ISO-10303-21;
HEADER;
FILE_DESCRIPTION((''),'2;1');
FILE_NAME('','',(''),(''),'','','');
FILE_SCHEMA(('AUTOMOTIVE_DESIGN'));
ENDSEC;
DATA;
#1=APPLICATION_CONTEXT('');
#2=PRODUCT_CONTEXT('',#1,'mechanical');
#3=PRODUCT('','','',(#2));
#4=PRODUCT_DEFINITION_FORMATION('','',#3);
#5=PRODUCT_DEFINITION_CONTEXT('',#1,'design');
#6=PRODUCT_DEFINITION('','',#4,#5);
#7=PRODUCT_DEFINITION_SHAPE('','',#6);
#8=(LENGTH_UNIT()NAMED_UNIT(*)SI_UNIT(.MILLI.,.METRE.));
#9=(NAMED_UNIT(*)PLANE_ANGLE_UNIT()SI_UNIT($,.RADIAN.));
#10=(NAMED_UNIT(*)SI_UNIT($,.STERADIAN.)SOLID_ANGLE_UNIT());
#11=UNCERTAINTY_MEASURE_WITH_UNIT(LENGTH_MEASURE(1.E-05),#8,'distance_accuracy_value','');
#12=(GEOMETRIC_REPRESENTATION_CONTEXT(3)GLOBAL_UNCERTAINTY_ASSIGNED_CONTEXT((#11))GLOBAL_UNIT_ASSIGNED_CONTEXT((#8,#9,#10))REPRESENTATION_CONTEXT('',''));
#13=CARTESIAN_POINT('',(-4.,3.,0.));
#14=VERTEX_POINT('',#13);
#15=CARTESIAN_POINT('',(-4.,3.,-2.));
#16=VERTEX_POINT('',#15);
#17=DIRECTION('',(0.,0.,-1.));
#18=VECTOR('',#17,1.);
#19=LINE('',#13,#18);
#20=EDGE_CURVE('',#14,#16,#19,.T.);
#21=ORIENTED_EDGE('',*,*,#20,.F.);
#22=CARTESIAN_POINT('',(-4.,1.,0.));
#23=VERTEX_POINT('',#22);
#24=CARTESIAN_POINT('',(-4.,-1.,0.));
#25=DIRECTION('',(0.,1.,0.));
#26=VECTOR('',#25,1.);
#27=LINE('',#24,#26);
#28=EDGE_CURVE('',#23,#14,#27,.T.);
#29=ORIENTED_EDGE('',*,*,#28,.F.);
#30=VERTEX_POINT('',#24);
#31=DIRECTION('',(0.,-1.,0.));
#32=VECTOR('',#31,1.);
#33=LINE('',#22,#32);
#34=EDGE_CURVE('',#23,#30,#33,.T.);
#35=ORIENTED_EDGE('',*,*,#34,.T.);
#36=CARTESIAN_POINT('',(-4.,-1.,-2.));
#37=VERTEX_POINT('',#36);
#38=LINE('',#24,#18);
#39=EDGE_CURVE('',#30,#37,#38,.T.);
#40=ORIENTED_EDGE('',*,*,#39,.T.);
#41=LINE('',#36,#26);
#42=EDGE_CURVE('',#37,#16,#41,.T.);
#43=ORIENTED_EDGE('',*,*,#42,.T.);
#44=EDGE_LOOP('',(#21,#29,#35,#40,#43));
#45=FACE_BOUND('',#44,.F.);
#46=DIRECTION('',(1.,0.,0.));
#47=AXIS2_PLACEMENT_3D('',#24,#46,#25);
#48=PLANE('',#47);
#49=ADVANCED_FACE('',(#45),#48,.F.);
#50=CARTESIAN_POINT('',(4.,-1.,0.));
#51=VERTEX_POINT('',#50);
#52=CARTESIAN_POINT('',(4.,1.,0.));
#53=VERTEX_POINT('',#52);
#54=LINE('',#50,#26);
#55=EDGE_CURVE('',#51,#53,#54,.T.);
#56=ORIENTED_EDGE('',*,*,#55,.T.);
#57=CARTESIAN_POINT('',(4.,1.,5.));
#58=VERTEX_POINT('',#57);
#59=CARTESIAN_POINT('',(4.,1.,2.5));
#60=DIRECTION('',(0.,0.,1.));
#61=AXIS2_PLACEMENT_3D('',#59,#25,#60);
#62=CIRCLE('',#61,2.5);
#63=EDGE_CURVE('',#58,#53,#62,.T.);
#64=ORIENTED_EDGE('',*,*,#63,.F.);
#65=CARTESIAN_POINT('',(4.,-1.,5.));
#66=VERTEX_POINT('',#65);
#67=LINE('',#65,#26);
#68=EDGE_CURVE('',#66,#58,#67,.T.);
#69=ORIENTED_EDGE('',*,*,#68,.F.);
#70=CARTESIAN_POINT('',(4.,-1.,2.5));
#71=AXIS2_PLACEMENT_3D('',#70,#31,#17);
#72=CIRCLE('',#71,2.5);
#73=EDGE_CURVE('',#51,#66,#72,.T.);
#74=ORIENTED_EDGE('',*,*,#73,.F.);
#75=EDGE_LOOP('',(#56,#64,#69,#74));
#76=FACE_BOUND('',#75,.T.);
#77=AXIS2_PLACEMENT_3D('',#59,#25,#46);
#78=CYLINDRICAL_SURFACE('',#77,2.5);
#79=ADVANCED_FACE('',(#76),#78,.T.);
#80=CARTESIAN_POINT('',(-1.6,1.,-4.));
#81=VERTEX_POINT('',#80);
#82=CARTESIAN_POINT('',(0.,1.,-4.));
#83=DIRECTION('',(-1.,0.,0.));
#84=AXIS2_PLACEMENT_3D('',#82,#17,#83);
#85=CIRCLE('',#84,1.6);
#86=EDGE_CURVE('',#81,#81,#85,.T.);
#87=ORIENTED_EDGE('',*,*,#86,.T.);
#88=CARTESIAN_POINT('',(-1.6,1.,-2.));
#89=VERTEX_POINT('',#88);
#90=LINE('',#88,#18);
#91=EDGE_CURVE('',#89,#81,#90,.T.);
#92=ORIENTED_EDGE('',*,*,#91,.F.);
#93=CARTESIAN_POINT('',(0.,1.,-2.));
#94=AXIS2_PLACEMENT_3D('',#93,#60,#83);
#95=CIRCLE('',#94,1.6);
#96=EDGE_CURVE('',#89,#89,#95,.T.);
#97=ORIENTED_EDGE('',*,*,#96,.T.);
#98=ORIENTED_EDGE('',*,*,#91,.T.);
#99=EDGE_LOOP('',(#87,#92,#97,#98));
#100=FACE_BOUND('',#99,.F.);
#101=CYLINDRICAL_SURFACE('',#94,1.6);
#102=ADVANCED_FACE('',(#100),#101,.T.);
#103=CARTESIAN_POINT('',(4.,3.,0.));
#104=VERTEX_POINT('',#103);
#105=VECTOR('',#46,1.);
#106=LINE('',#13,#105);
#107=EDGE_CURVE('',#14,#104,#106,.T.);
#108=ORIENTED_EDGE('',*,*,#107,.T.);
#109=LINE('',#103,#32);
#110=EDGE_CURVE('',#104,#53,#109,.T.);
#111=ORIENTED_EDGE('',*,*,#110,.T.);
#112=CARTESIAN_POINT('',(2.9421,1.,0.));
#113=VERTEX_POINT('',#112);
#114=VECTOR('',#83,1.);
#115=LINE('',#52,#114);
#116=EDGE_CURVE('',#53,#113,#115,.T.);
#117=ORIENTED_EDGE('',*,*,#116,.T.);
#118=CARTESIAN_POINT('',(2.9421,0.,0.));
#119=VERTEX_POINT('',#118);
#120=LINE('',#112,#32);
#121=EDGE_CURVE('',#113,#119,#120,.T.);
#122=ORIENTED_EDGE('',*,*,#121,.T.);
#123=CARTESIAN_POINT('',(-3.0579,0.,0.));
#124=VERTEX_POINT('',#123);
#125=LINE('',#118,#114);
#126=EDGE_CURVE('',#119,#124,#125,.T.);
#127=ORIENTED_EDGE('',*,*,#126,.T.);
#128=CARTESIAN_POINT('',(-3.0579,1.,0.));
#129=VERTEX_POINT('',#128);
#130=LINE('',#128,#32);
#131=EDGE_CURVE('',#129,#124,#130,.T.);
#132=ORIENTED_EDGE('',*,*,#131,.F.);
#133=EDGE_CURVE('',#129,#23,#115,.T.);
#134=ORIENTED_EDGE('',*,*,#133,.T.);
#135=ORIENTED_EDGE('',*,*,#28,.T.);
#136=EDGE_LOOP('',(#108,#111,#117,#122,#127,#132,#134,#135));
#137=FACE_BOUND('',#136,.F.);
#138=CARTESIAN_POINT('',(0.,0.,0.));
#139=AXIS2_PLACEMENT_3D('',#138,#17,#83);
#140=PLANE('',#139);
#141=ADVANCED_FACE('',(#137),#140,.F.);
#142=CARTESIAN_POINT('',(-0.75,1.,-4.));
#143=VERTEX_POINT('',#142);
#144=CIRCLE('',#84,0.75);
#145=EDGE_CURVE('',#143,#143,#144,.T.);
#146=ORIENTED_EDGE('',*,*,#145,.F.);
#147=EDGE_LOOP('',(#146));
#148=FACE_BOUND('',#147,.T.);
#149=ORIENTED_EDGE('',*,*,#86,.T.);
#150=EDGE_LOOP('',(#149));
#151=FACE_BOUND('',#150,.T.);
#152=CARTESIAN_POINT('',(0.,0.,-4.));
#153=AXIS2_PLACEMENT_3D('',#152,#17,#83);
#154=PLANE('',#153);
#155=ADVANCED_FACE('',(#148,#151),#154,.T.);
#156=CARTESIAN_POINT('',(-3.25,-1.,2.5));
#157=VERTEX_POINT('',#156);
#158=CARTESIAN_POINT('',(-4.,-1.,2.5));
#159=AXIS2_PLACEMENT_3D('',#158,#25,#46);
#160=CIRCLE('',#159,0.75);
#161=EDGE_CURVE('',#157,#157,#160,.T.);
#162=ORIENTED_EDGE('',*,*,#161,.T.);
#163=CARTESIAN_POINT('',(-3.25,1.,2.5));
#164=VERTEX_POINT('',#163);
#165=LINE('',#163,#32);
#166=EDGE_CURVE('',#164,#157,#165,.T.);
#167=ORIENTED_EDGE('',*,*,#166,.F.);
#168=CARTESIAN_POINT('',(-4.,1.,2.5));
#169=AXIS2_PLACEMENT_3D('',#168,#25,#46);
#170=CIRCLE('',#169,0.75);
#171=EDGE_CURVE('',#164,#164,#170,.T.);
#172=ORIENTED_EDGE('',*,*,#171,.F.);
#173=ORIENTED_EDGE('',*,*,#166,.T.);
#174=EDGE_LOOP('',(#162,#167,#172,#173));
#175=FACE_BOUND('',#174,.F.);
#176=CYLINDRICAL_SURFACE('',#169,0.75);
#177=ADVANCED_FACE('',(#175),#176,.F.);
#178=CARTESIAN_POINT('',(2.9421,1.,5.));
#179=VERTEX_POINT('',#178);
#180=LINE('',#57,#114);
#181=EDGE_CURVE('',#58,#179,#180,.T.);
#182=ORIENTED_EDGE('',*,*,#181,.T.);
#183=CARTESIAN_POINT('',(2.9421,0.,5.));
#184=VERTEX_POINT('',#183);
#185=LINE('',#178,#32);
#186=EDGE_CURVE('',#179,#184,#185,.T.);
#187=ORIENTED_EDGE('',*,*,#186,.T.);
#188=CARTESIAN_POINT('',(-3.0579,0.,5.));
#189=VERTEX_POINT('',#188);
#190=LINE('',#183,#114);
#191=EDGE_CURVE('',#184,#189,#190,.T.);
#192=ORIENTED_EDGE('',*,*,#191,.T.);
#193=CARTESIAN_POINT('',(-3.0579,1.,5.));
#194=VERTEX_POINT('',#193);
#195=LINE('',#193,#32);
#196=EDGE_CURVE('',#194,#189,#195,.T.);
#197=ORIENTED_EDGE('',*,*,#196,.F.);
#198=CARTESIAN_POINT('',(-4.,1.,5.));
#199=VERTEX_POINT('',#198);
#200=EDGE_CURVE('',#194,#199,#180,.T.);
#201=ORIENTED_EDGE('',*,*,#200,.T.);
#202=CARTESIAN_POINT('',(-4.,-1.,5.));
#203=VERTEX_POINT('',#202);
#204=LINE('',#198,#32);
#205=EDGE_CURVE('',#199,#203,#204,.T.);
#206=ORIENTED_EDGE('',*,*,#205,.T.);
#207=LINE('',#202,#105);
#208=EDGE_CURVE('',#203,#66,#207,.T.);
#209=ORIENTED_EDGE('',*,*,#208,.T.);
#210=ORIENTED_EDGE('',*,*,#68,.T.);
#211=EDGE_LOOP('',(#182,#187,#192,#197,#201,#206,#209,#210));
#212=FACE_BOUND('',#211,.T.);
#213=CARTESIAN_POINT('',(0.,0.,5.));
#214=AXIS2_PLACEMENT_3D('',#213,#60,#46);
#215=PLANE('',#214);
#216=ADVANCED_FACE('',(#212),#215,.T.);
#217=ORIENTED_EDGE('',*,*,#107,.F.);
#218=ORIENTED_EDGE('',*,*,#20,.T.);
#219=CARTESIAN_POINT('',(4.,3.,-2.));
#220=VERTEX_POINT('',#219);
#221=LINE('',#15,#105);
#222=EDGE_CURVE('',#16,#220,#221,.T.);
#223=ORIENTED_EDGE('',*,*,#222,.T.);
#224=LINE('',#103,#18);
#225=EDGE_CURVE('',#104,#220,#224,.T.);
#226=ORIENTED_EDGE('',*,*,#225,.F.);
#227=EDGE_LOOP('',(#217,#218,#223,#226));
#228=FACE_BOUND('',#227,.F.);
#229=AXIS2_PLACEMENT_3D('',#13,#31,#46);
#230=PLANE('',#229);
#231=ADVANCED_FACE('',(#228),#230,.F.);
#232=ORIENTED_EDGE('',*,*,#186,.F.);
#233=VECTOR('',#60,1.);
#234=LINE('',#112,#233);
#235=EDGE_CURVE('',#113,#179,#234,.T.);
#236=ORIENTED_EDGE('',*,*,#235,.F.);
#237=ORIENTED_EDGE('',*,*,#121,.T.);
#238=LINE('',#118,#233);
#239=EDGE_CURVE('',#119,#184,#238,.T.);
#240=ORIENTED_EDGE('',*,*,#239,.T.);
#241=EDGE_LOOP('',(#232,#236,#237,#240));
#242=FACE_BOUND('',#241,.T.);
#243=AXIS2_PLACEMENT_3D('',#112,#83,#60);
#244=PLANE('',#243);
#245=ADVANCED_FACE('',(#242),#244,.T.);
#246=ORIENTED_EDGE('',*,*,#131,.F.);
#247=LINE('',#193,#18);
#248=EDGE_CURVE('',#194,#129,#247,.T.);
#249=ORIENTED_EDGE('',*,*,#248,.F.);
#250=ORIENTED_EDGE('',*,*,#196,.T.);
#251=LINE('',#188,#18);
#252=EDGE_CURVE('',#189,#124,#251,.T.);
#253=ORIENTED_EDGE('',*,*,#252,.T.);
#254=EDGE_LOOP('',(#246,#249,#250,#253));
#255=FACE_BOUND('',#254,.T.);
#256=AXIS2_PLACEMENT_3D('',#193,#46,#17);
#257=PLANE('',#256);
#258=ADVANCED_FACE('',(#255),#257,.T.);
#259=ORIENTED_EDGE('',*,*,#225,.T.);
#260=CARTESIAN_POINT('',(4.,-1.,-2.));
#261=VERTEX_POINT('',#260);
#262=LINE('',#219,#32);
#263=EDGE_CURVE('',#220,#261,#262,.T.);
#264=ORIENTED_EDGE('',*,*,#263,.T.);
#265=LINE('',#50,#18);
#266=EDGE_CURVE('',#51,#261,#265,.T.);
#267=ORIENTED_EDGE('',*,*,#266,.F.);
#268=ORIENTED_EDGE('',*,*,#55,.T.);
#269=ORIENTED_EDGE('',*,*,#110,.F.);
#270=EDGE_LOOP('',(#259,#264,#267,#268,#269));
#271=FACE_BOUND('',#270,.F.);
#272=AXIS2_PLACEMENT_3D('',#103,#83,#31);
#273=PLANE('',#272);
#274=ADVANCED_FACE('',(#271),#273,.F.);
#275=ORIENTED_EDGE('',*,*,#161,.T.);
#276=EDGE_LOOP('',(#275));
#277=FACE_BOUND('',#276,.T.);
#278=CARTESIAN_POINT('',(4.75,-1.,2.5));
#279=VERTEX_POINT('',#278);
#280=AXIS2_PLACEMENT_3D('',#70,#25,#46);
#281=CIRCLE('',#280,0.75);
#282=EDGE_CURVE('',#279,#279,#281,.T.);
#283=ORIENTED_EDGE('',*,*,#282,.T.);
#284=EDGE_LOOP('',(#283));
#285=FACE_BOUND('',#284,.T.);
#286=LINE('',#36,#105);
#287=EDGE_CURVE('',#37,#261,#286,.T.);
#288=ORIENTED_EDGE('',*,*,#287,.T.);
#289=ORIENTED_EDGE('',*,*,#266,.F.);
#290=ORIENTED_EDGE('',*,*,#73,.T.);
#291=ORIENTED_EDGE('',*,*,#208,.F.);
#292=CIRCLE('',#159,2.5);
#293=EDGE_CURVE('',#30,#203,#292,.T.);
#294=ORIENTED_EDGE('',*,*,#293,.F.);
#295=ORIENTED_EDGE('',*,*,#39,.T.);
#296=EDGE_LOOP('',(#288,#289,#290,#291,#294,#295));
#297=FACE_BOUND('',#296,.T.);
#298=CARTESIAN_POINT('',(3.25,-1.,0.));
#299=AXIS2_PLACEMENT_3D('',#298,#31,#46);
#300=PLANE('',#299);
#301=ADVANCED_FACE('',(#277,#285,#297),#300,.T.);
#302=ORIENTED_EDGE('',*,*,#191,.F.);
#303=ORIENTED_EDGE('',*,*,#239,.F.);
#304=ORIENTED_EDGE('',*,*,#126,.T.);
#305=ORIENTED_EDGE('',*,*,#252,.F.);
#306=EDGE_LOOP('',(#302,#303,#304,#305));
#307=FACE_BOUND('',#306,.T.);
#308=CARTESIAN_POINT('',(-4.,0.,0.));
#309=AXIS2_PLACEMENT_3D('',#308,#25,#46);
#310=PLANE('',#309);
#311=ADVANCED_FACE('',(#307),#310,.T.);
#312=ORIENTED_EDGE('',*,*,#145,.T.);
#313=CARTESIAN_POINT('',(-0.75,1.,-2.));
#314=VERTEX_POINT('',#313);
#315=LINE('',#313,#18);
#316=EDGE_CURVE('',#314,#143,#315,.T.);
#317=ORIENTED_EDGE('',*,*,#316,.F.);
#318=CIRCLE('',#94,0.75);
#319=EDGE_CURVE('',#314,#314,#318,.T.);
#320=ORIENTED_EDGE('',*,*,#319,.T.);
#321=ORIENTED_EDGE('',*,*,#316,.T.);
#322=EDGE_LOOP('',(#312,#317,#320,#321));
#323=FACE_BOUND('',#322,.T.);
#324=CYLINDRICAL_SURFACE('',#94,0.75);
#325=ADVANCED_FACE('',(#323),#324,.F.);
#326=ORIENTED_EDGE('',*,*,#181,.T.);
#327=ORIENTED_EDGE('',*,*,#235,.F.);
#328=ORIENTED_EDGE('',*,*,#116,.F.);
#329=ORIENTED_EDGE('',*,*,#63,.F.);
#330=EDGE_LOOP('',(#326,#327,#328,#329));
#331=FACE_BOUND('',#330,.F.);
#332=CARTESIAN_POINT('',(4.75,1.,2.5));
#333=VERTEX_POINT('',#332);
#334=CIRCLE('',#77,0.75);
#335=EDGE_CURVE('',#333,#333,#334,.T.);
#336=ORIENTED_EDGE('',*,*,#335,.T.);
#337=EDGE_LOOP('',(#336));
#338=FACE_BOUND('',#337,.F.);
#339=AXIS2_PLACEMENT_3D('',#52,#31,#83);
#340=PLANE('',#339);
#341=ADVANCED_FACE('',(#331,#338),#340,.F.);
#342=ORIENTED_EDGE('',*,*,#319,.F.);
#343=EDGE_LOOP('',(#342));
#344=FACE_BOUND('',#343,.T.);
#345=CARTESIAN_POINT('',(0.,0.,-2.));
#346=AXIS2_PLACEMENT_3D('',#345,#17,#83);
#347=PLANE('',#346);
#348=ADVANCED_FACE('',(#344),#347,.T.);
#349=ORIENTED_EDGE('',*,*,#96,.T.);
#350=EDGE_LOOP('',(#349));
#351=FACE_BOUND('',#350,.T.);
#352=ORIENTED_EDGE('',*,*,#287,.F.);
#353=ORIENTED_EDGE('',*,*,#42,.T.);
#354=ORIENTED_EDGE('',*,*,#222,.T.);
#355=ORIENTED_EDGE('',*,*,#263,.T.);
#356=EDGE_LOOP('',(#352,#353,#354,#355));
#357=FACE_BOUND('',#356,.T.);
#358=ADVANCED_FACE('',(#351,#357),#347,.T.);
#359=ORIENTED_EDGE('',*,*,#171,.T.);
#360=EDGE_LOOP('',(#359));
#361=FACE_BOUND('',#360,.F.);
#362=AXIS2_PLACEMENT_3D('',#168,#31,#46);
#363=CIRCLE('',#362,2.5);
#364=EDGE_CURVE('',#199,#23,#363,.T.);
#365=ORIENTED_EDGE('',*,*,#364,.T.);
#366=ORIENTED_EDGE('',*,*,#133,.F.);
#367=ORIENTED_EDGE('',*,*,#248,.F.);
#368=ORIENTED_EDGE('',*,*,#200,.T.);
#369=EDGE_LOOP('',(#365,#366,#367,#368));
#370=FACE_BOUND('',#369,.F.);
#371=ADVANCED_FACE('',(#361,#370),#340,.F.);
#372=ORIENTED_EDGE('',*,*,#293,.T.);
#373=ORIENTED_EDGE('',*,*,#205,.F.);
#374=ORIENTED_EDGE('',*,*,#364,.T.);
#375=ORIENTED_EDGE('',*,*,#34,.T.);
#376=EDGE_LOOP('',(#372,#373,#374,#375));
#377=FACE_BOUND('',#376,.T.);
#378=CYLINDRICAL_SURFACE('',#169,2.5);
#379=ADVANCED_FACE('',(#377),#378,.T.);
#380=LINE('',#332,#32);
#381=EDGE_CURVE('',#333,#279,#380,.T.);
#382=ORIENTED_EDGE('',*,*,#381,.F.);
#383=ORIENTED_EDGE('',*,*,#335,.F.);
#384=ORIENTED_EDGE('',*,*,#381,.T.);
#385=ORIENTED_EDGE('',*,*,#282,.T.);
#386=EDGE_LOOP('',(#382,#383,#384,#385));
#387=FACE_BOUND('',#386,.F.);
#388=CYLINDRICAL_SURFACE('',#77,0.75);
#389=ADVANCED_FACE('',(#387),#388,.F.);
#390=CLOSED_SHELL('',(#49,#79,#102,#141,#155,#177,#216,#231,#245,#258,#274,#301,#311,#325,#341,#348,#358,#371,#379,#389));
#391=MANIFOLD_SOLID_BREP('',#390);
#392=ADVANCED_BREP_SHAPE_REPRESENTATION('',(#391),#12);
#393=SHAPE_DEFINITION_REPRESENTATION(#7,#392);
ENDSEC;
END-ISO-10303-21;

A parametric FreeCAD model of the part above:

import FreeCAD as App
import Part
import Sketcher
from FreeCAD import Vector
Q = App.Units.Quantity


def add_polygon(sketch, points):
    """Adds a closed chain of lines whose ends are joined by coincident constraints."""
    first, n = sketch.GeometryCount, len(points)
    for a, b in zip(points, points[1:] + points[:1]):
        sketch.addGeometry(Part.LineSegment(App.Vector(*a, 0), App.Vector(*b, 0)), False)
    for i in range(n):
        sketch.addConstraint(Sketcher.Constraint("Coincident", first + i, 2, first + (i + 1) % n, 1))

doc = App.newDocument("Part")
body = doc.addObject("PartDesign::Body", "Body")

sketch1 = body.newObject("Sketcher::SketchObject", "Sketch")
sketch1.AttachmentSupport = (doc.getObject("XY_Plane"), [""])
sketch1.MapMode = "FlatFace"
add_polygon(sketch1, [(-4, 1), (-4, -1), (4, -1), (4, 1)])
sketch1.addConstraint([
    Sketcher.Constraint("Vertical", 0),
    Sketcher.Constraint("Horizontal", 1),
    Sketcher.Constraint("Vertical", 2),
    Sketcher.Constraint("Horizontal", 3),
    Sketcher.Constraint("Symmetric", 0, 2, 2, 2, -1, 1),
    Sketcher.Constraint("DistanceX", 1, 1, 1, 2, Q("8 mm")),
    Sketcher.Constraint("DistanceY", 0, 2, 0, 1, Q("2 mm")),
])
pad1 = body.newObject("PartDesign::Pad", "Pad")
pad1.Profile = sketch1
pad1.Length = 5

sketch2 = body.newObject("Sketcher::SketchObject", "Sketch001")
sketch2.AttachmentSupport = (doc.getObject("XZ_Plane"), [""])
sketch2.MapMode = "FlatFace"
sketch2.AttachmentOffset = App.Placement(Vector(0, 0, -1), App.Rotation())
sketch2.addGeometry([
    Part.Circle(Vector(-4, 2.5, 0), Vector(0, 0, 1), 2.5),
    Part.Circle(Vector(4, 2.5, 0), Vector(0, 0, 1), 2.5),
], False)
sketch2.addConstraint([
    Sketcher.Constraint("Equal", 0, 1),
    Sketcher.Constraint("Symmetric", 0, 3, 1, 3, -2),
    Sketcher.Constraint("Diameter", 0, Q("5 mm")),
    Sketcher.Constraint("DistanceX", 0, 3, -1, 1, Q("4 mm")),
    Sketcher.Constraint("DistanceY", -1, 1, 0, 3, Q("2.5 mm")),
])
pad2 = body.newObject("PartDesign::Pad", "Pad001")
pad2.Profile = sketch2
pad2.Length = 2

sketch3 = body.newObject("Sketcher::SketchObject", "Sketch002")
sketch3.AttachmentSupport = (doc.getObject("XZ_Plane"), [""])
sketch3.MapMode = "FlatFace"
sketch3.AttachmentOffset = App.Placement(Vector(0, 0, -1), App.Rotation())
sketch3.addGeometry([
    Part.Circle(Vector(-4, 2.5, 0), Vector(0, 0, 1), 0.8),
    Part.Circle(Vector(4, 2.5, 0), Vector(0, 0, 1), 0.8),
], False)
sketch3.addConstraint([
    Sketcher.Constraint("Equal", 0, 1),
    Sketcher.Constraint("Symmetric", 0, 3, 1, 3, -2),
    Sketcher.Constraint("Diameter", 0, Q("1.5 mm")),
    Sketcher.Constraint("DistanceX", 0, 3, -1, 1, Q("4 mm")),
    Sketcher.Constraint("DistanceY", -1, 1, 0, 3, Q("2.5 mm")),
])
pocket1 = body.newObject("PartDesign::Pocket", "Pocket")
pocket1.Profile = sketch3
pocket1.Length = 2
pocket1.Reversed = True

sketch4 = body.newObject("Sketcher::SketchObject", "Sketch003")
sketch4.AttachmentSupport = (doc.getObject("XZ_Plane"), [""])
sketch4.MapMode = "FlatFace"
sketch4.AttachmentOffset = App.Placement(Vector(0, 0, -1), App.Rotation())
add_polygon(sketch4, [(3, 0), (-3, 0), (-3, 5), (3, 5)])
sketch4.addConstraint([
    Sketcher.Constraint("Horizontal", 0),
    Sketcher.Constraint("Vertical", 1),
    Sketcher.Constraint("Horizontal", 2),
    Sketcher.Constraint("Vertical", 3),
    Sketcher.Constraint("PointOnObject", 0, 2, -1),
    Sketcher.Constraint("DistanceX", 0, 2, 0, 1, Q("6 mm")),
    Sketcher.Constraint("DistanceY", 1, 1, 1, 2, Q("5 mm")),
    Sketcher.Constraint("DistanceX", 0, 2, -1, 1, Q("3.058 mm")),
])
pocket2 = body.newObject("PartDesign::Pocket", "Pocket001")
pocket2.Profile = sketch4
pocket2.Length = 1
pocket2.Reversed = True

sketch5 = body.newObject("Sketcher::SketchObject", "Sketch004")
sketch5.AttachmentSupport = (doc.getObject("XY_Plane"), [""])
sketch5.MapMode = "FlatFace"
add_polygon(sketch5, [(4, -1), (-4, -1), (-4, 3), (4, 3)])
sketch5.addConstraint([
    Sketcher.Constraint("Horizontal", 0),
    Sketcher.Constraint("Vertical", 1),
    Sketcher.Constraint("Horizontal", 2),
    Sketcher.Constraint("Vertical", 3),
    Sketcher.Constraint("DistanceX", 0, 2, 0, 1, Q("8 mm")),
    Sketcher.Constraint("DistanceY", 1, 1, 1, 2, Q("4 mm")),
    Sketcher.Constraint("DistanceX", 0, 2, -1, 1, Q("4 mm")),
    Sketcher.Constraint("DistanceY", 0, 2, -1, 1, Q("1 mm")),
])
pad3 = body.newObject("PartDesign::Pad", "Pad002")
pad3.Profile = sketch5
pad3.Length = 2
pad3.Reversed = True

sketch6 = body.newObject("Sketcher::SketchObject", "Sketch005")
sketch6.AttachmentSupport = (doc.getObject("XY_Plane"), [""])
sketch6.MapMode = "FlatFace"
sketch6.AttachmentOffset = App.Placement(Vector(0, 0, -2), App.Rotation())
sketch6.addGeometry([
    Part.Circle(Vector(0, 1, 0), Vector(0, 0, 1), 1.6),
    Part.Circle(Vector(0, 1, 0), Vector(0, 0, 1), 0.8),
], False)
sketch6.addConstraint([
    Sketcher.Constraint("Coincident", 1, 3, 0, 3),
    Sketcher.Constraint("PointOnObject", 0, 3, -2),
    Sketcher.Constraint("Diameter", 0, Q("3.2 mm")),
    Sketcher.Constraint("Diameter", 1, Q("1.5 mm")),
    Sketcher.Constraint("DistanceY", -1, 1, 0, 3, Q("1 mm")),
])
pad4 = body.newObject("PartDesign::Pad", "Pad003")
pad4.Profile = sketch6
pad4.Length = 2
pad4.Reversed = True

doc.recompute()
